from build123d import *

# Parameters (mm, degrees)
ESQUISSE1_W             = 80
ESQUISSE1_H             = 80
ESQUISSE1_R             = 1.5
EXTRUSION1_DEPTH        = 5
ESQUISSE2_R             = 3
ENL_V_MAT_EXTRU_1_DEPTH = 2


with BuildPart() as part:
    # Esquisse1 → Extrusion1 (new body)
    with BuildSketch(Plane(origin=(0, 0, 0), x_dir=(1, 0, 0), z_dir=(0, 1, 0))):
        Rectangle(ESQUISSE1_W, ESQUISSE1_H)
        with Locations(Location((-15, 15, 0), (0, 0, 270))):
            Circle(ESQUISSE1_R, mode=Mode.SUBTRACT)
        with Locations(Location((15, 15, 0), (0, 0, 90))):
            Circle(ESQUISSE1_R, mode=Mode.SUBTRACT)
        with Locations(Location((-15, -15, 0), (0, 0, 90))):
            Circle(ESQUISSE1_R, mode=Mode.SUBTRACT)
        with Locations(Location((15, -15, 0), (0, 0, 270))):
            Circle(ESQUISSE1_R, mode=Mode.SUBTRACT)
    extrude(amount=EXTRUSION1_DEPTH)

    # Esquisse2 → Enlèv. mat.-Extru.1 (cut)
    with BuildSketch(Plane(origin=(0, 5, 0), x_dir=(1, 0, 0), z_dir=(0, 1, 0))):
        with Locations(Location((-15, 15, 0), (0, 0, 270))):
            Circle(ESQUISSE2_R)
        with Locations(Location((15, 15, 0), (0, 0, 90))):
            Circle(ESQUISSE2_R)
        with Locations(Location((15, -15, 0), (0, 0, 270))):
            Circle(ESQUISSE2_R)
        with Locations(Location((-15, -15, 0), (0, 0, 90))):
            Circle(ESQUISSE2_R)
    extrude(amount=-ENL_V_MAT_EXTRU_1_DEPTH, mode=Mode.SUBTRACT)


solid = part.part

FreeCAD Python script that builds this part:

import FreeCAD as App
import Part
import Sketcher
from FreeCAD import Vector
Q = App.Units.Quantity

doc = App.newDocument("Part")
body = doc.addObject("PartDesign::Body", "Body")

# Sketch on XZ plane
sketch1 = body.newObject("Sketcher::SketchObject", "Sketch")
sketch1.AttachmentSupport = (doc.getObject("XZ_Plane"), [""])
sketch1.MapMode = "FlatFace"
sketch1.addGeometry(Part.LineSegment(Vector(-40, -40, 0), Vector(-40, 40, 0)), False)
sketch1.addGeometry(Part.LineSegment(Vector(-40, 40, 0), Vector(40, 40, 0)), False)
sketch1.addGeometry(Part.LineSegment(Vector(40, 40, 0), Vector(40, -40, 0)), False)
sketch1.addGeometry(Part.LineSegment(Vector(40, -40, 0), Vector(-40, -40, 0)), False)
sketch1.addGeometry(Part.Circle(Vector(-15, 15, 0), Vector(0, 0, 1), 1.5), False)
sketch1.addGeometry(Part.Circle(Vector(15, 15, 0), Vector(0, 0, 1), 1.5), False)
sketch1.addGeometry(Part.Circle(Vector(-15, -15, 0), Vector(0, 0, 1), 1.5), False)
sketch1.addGeometry(Part.Circle(Vector(15, -15, 0), Vector(0, 0, 1), 1.5), False)
sketch1.addConstraint(Sketcher.Constraint("Coincident", 0, 2, 1, 1))
sketch1.addConstraint(Sketcher.Constraint("Coincident", 1, 2, 2, 1))
sketch1.addConstraint(Sketcher.Constraint("Coincident", 2, 2, 3, 1))
sketch1.addConstraint(Sketcher.Constraint("Coincident", 3, 2, 0, 1))
sketch1.addConstraint(Sketcher.Constraint("Vertical", 0))
sketch1.addConstraint(Sketcher.Constraint("Horizontal", 1))
sketch1.addConstraint(Sketcher.Constraint("Vertical", 2))
sketch1.addConstraint(Sketcher.Constraint("Horizontal", 3))
sketch1.addConstraint(Sketcher.Constraint("Equal", 4, 5))
sketch1.addConstraint(Sketcher.Constraint("Equal", 5, 6))
sketch1.addConstraint(Sketcher.Constraint("Equal", 6, 7))
sketch1.addConstraint(Sketcher.Constraint("Symmetric", 5, 3, 6, 3, -1, 1))
sketch1.addConstraint(Sketcher.Constraint("Symmetric", 4, 3, 7, 3, -1, 1))
sketch1.addConstraint(Sketcher.Constraint("Symmetric", 0, 2, 2, 2, -1, 1))
sketch1.addConstraint(Sketcher.Constraint("Symmetric", 4, 3, 5, 3, -2))
sketch1.addConstraint(Sketcher.Constraint("Equal", 3, 0))
sketch1.addConstraint(Sketcher.Constraint("Diameter", 4, Q("3 mm")))
sketch1.addConstraint(Sketcher.Constraint("DistanceX", 1, 1, 1, 2, Q("80 mm")))
sketch1.addConstraint(Sketcher.Constraint("DistanceX", 4, 3, -1, 1, Q("15 mm")))
sketch1.addConstraint(Sketcher.Constraint("DistanceY", -1, 1, 4, 3, Q("15 mm")))
pad1 = body.newObject("PartDesign::Pad", "Pad")
pad1.Profile = sketch1
pad1.Length = 5
pad1.Reversed = True

# Sketch on XZ plane
sketch2 = body.newObject("Sketcher::SketchObject", "Sketch001")
sketch2.AttachmentSupport = (doc.getObject("XZ_Plane"), [""])
sketch2.MapMode = "FlatFace"
sketch2.AttachmentOffset = App.Placement(Vector(0, 0, -5), App.Rotation())
sketch2.addGeometry(Part.Circle(Vector(-15, -15, 0), Vector(0, 0, 1), 3), False)
sketch2.addGeometry(Part.Circle(Vector(15, -15, 0), Vector(0, 0, 1), 3), False)
sketch2.addGeometry(Part.Circle(Vector(15, 15, 0), Vector(0, 0, 1), 3), False)
sketch2.addGeometry(Part.Circle(Vector(-15, 15, 0), Vector(0, 0, 1), 3), False)
sketch2.addConstraint(Sketcher.Constraint("Equal", 0, 1))
sketch2.addConstraint(Sketcher.Constraint("Equal", 1, 2))
sketch2.addConstraint(Sketcher.Constraint("Equal", 2, 3))
sketch2.addConstraint(Sketcher.Constraint("Symmetric", 0, 3, 2, 3, -1, 1))
sketch2.addConstraint(Sketcher.Constraint("Symmetric", 1, 3, 3, 3, -1, 1))
sketch2.addConstraint(Sketcher.Constraint("Symmetric", 0, 3, 1, 3, -2))
sketch2.addConstraint(Sketcher.Constraint("Diameter", 0, Q("6 mm")))
sketch2.addConstraint(Sketcher.Constraint("DistanceX", 0, 3, -1, 1, Q("15 mm")))
sketch2.addConstraint(Sketcher.Constraint("DistanceY", 0, 3, -1, 1, Q("15 mm")))
pocket1 = body.newObject("PartDesign::Pocket", "Pocket")
pocket1.Profile = sketch2
pocket1.Length = 2
pocket1.Reversed = True

doc.recompute()
